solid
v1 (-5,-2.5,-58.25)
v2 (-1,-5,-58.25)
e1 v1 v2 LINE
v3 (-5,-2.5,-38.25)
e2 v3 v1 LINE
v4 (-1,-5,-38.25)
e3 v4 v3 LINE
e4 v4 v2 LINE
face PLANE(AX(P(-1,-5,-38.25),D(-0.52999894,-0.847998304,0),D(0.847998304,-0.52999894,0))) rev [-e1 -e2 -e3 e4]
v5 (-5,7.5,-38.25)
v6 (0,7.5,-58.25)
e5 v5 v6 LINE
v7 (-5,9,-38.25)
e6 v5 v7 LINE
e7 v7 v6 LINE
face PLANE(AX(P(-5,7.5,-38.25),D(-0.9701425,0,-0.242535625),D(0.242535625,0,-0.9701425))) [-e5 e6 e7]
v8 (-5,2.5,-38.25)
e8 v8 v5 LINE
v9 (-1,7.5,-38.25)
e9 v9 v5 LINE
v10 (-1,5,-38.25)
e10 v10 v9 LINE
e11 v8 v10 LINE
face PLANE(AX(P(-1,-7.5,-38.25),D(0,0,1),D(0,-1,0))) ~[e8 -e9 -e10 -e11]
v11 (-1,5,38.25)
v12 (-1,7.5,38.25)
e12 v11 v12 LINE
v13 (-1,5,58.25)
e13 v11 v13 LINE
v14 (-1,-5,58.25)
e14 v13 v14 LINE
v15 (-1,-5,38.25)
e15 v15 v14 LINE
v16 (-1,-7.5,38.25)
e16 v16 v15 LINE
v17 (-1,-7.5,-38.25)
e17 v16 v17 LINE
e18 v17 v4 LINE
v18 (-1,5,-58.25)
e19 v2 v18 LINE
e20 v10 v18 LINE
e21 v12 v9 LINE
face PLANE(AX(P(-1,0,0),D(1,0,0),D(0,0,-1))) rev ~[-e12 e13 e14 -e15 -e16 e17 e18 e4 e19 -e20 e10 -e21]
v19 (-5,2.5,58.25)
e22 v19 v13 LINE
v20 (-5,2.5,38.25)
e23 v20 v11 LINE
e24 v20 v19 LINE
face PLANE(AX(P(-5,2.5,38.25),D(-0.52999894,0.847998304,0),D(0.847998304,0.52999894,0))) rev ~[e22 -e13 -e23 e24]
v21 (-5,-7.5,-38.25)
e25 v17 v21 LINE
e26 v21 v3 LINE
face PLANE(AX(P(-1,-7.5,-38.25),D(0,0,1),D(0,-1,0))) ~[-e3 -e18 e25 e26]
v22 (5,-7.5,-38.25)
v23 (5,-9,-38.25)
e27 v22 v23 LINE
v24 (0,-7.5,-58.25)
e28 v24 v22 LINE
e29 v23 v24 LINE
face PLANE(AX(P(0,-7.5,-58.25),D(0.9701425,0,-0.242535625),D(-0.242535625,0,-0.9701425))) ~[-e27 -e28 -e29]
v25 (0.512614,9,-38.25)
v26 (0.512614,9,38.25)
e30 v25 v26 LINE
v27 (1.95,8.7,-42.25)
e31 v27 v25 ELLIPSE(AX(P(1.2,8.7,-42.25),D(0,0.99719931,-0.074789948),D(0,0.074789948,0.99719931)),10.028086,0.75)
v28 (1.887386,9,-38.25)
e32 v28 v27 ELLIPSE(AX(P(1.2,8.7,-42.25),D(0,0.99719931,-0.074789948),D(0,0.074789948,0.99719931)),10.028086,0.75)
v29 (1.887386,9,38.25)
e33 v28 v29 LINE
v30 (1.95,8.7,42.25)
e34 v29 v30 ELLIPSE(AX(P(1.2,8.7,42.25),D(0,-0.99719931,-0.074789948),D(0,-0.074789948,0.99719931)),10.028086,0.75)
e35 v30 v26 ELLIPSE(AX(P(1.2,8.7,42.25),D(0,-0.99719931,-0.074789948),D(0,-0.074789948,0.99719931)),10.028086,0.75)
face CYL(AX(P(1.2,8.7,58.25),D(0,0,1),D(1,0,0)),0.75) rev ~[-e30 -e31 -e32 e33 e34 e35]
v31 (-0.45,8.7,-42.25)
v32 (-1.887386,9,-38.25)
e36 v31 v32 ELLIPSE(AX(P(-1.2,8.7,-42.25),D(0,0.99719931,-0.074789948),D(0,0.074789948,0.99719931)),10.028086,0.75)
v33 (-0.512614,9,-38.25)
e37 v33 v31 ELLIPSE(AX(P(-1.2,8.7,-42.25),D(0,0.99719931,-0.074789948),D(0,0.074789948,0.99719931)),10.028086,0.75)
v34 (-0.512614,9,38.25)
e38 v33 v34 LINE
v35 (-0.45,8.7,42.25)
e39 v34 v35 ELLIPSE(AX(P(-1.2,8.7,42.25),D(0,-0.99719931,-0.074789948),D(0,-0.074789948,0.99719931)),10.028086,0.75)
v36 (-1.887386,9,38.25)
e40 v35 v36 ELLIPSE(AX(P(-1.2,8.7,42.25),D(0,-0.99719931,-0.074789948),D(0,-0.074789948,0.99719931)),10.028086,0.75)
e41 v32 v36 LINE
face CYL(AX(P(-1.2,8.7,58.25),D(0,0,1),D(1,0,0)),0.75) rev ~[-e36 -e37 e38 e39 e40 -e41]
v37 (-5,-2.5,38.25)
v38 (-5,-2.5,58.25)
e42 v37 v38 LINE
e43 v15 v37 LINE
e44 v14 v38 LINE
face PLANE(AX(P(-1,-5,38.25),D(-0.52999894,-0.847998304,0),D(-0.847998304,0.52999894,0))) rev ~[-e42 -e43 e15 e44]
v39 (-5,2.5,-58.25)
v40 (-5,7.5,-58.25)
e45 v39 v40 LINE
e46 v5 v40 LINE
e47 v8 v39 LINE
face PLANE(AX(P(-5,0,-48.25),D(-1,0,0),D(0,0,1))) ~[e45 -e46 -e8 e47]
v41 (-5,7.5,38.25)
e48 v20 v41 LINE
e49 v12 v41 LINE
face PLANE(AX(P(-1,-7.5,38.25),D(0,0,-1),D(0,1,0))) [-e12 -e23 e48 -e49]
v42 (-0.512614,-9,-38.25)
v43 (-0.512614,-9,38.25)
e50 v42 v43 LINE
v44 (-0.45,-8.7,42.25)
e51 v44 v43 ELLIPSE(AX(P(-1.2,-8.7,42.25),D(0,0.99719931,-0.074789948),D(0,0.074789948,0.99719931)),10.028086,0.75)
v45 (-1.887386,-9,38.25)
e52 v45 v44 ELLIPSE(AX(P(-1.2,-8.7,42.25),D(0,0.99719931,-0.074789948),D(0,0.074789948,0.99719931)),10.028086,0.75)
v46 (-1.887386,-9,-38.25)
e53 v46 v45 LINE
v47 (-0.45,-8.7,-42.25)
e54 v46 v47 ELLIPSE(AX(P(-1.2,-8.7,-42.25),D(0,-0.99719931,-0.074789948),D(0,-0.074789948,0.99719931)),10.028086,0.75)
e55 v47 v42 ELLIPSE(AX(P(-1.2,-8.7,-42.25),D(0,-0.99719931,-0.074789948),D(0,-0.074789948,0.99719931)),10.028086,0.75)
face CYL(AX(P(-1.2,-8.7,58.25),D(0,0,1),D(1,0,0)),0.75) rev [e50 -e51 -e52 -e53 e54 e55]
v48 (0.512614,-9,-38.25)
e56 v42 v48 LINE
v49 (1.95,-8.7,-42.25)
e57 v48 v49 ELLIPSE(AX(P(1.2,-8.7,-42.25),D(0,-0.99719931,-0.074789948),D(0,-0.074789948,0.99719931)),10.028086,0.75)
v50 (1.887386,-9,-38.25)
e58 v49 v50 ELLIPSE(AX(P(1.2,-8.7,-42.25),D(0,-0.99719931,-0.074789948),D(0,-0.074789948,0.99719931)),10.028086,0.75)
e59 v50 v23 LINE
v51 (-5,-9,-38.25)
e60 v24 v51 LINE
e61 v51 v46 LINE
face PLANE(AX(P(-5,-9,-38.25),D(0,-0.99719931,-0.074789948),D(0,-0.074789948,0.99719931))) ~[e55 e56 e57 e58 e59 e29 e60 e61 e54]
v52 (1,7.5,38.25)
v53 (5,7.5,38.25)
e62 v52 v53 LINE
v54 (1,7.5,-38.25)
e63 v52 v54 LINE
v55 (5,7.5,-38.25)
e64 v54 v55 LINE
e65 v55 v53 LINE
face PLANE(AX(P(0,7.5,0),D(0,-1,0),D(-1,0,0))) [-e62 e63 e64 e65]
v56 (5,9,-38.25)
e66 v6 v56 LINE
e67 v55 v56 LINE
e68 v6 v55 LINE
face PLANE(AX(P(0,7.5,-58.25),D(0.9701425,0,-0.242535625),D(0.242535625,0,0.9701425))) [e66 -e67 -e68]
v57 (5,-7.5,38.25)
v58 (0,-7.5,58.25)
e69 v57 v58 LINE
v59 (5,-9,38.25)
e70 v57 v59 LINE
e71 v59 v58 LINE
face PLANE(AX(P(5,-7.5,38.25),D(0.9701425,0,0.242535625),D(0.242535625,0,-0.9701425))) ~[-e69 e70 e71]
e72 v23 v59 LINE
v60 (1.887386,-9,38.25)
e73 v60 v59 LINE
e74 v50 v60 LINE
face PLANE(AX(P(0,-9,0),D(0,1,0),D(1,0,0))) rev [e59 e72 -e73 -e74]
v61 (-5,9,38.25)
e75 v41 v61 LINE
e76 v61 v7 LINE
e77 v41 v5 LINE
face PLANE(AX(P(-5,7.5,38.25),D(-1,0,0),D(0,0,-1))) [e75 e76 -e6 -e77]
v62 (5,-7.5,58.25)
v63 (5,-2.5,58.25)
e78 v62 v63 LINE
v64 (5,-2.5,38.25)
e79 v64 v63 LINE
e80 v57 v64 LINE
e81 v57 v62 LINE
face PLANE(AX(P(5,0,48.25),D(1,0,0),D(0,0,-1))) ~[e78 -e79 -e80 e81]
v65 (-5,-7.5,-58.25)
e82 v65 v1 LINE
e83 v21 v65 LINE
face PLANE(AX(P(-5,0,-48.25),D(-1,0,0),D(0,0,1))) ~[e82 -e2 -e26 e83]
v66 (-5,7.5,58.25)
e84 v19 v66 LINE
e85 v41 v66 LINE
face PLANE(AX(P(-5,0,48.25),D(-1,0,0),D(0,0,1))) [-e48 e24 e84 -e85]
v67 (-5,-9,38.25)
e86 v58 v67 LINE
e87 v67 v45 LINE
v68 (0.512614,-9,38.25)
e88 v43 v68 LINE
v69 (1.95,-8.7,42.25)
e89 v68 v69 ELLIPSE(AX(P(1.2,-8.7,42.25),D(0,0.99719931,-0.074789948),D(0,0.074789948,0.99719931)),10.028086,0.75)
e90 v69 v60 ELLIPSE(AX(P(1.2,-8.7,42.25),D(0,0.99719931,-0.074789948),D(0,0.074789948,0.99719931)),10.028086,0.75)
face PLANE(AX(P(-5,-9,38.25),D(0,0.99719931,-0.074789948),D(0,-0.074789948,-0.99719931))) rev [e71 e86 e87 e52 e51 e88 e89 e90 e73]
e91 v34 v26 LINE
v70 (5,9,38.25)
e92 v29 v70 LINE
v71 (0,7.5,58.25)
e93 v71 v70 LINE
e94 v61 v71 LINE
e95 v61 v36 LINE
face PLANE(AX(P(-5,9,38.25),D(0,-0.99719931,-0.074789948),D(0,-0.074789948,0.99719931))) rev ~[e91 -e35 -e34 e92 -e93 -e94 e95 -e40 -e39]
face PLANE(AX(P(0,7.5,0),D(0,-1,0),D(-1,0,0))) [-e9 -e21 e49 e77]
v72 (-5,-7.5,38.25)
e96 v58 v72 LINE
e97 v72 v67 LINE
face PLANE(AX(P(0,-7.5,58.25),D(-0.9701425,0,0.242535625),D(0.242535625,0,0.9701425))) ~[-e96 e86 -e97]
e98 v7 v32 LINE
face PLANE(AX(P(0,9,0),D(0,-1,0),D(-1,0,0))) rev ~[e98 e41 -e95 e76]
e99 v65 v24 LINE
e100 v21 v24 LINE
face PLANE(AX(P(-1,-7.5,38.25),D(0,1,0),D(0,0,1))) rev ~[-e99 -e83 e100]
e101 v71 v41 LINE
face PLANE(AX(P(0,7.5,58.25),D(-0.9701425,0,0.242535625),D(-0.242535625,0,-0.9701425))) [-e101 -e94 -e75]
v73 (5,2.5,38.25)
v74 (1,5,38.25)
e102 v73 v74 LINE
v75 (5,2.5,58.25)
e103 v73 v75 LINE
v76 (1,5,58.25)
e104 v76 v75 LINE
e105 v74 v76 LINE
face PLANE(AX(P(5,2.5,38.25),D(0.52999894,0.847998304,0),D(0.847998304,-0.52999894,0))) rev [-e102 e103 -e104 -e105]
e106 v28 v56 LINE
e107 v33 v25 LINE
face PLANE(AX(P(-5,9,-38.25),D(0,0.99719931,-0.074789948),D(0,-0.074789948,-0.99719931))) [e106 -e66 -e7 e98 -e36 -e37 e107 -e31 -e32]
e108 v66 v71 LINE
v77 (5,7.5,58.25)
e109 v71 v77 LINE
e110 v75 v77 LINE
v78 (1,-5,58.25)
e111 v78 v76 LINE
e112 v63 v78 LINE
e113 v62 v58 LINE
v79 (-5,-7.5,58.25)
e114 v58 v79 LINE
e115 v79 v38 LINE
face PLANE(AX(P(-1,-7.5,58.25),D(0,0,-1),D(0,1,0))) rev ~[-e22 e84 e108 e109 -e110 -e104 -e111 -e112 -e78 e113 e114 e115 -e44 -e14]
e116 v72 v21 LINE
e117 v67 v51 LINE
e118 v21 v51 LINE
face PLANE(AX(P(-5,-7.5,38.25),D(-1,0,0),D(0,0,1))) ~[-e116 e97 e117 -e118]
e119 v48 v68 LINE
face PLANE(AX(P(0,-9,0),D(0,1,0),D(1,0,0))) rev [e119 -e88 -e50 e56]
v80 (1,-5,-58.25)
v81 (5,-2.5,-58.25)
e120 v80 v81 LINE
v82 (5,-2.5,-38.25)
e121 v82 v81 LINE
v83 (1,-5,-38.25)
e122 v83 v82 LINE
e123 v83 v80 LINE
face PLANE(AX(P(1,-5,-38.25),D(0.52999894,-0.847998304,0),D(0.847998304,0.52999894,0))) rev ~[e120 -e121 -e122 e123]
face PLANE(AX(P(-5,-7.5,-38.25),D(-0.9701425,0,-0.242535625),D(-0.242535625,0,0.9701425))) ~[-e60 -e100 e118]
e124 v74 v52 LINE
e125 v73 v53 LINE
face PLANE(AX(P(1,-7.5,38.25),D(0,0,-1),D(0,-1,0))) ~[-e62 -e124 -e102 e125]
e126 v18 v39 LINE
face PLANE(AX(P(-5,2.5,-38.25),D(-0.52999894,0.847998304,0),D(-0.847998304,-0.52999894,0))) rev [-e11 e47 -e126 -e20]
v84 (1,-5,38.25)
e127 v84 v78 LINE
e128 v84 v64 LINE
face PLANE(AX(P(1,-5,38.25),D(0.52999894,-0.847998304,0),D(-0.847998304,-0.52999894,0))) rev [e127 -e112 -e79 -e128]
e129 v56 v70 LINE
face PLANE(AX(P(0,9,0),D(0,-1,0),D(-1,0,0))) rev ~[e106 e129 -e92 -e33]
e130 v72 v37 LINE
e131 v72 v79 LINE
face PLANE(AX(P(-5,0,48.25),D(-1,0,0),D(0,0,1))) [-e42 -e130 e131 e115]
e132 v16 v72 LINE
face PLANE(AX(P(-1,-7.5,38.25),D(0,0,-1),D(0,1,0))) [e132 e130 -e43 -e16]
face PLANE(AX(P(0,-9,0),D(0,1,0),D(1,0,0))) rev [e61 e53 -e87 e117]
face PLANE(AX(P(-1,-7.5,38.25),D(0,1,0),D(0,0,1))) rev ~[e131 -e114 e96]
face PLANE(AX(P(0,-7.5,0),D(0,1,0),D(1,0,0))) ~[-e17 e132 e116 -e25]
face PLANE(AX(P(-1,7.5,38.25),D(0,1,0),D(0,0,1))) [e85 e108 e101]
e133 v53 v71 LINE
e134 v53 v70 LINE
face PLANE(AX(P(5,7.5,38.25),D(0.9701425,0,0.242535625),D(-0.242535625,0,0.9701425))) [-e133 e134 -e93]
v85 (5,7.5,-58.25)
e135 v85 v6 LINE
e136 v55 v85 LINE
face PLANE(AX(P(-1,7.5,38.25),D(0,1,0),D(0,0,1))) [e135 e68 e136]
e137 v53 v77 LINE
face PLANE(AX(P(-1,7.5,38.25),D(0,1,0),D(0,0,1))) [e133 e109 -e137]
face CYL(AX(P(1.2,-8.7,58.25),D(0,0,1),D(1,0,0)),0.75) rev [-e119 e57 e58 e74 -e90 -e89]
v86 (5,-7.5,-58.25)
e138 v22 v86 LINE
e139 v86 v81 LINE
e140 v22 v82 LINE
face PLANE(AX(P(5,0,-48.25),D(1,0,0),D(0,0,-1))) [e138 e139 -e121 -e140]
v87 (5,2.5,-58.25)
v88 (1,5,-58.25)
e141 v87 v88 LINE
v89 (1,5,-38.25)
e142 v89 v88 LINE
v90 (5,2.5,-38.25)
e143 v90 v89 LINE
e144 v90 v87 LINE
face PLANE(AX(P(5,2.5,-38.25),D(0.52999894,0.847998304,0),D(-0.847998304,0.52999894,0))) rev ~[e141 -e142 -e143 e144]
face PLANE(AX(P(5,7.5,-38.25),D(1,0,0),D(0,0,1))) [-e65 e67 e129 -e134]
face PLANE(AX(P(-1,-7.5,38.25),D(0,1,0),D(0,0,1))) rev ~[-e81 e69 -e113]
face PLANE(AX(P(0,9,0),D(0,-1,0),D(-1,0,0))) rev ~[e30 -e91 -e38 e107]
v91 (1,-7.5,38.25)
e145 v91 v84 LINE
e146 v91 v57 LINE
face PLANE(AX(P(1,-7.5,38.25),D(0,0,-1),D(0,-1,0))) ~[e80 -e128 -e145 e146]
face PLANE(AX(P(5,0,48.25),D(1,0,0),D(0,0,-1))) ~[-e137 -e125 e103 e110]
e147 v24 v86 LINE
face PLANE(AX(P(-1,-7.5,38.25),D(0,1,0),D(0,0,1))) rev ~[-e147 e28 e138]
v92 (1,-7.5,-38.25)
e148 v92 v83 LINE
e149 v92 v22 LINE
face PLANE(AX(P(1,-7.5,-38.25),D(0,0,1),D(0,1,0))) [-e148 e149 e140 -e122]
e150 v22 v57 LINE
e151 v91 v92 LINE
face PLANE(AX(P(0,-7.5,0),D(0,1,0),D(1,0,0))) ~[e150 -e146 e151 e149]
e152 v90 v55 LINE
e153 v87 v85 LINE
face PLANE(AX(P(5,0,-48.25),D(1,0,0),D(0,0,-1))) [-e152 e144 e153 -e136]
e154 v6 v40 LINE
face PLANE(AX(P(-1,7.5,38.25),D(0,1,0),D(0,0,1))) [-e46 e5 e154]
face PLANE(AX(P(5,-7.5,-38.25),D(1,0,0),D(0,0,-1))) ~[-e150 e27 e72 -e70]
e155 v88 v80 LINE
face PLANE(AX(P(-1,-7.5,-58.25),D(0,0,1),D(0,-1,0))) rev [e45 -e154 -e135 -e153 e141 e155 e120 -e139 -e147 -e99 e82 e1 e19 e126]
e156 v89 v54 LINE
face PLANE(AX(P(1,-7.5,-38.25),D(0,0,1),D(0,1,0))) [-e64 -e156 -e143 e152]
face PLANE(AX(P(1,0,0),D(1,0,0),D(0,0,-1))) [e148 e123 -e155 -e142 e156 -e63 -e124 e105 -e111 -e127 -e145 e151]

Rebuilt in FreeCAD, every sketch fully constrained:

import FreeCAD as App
import Part
import Sketcher
Q = App.Units.Quantity


def add_polygon(sketch, points):
    """Adds a closed chain of lines whose ends are joined by coincident constraints."""
    first, n = sketch.GeometryCount, len(points)
    for a, b in zip(points, points[1:] + points[:1]):
        sketch.addGeometry(Part.LineSegment(App.Vector(*a, 0), App.Vector(*b, 0)), False)
    for i in range(n):
        sketch.addConstraint(Sketcher.Constraint("Coincident", first + i, 2, first + (i + 1) % n, 1))

doc = App.newDocument("Part")
body = doc.addObject("PartDesign::Body", "Body")

# Sketch on YZ plane
sketch1 = body.newObject("Sketcher::SketchObject", "Sketch")
sketch1.AttachmentSupport = (doc.getObject("YZ_Plane"), [""])
sketch1.MapMode = "FlatFace"
add_polygon(sketch1, [(8, 58), (-8, 58), (-8, -58), (8, -58)])  # lines 0-3
sketch1.addConstraint([
    Sketcher.Constraint("Horizontal", 0),
    Sketcher.Constraint("Vertical", 1),
    Sketcher.Constraint("Horizontal", 2),
    Sketcher.Constraint("Vertical", 3),
    Sketcher.Constraint("Symmetric", 0, 2, 2, 2, -1, 1),
    Sketcher.Constraint("DistanceX", 0, 2, 0, 1, Q("15 mm")),
    Sketcher.Constraint("DistanceY", 1, 2, 1, 1, Q("116.5 mm")),
])
pad1 = body.newObject("PartDesign::Pad", "Pad")
pad1.Profile = sketch1
pad1.Length = 2
pad1.Midplane = True

# Sketch on YZ plane
sketch2 = body.newObject("Sketcher::SketchObject", "Sketch001")
sketch2.AttachmentSupport = (doc.getObject("YZ_Plane"), [""])
sketch2.MapMode = "FlatFace"
sketch2.AttachmentOffset = App.Placement(App.Vector(0, 0, 1), App.Rotation())
add_polygon(sketch2, [(8, -38), (-8, -38), (-8, -58), (8, -58)])  # lines 0-3
sketch2.addConstraint([
    Sketcher.Constraint("Horizontal", 0),
    Sketcher.Constraint("Vertical", 1),
    Sketcher.Constraint("Horizontal", 2),
    Sketcher.Constraint("Vertical", 3),
    Sketcher.Constraint("DistanceX", 0, 2, 0, 1, Q("15 mm")),
    Sketcher.Constraint("DistanceY", 1, 2, 1, 1, Q("20 mm")),
    Sketcher.Constraint("DistanceX", 0, 2, -1, 1, Q("7.5 mm")),
    Sketcher.Constraint("DistanceY", 0, 2, -1, 1, Q("38.25 mm")),
])
pad2 = body.newObject("PartDesign::Pad", "Pad001")
pad2.Profile = sketch2
pad2.Length = 4

# Sketch on XY plane
sketch3 = body.newObject("Sketcher::SketchObject", "Sketch002")
sketch3.AttachmentSupport = (doc.getObject("XY_Plane"), [""])
sketch3.MapMode = "FlatFace"
sketch3.AttachmentOffset = App.Placement(App.Vector(0, 0, -38.25), App.Rotation())
add_polygon(sketch3, [(5, 2.5), (1, 5), (1, -5), (5, -2.5)])  # lines 0-3
sketch3.addConstraint([
    Sketcher.Constraint("Vertical", 1),
    Sketcher.Constraint("Vertical", 3),
    Sketcher.Constraint("Equal", 0, 2),
    Sketcher.Constraint("DistanceY", 1, 2, 1, 1, Q("10 mm")),
    Sketcher.Constraint("DistanceY", 3, 1, 3, 2, Q("5 mm")),
    Sketcher.Constraint("DistanceX", -1, 1, 0, 2, Q("1 mm")),
    Sketcher.Constraint("DistanceY", -1, 1, 0, 2, Q("5 mm")),
    Sketcher.Constraint("DistanceX", -1, 1, 2, 2, Q("5 mm")),
])
pocket1 = body.newObject("PartDesign::Pocket", "Pocket")
pocket1.Profile = sketch3
pocket1.Type = "ThroughAll"
doc.recompute()

mirrored = body.newObject("PartDesign::Mirrored", "Mirrored")
mirrored.Originals = [pad2, pocket1]
mirrored.MirrorPlane = (doc.getObject("YZ_Plane"), [""])
body.Tip = mirrored
doc.recompute()

mirrored2 = body.newObject("PartDesign::Mirrored", "Mirrored001")
mirrored2.Originals = [pad2, pocket1]
mirrored2.MirrorPlane = (doc.getObject("XY_Plane"), [""])
body.Tip = mirrored2

# Sketch on YZ plane
sketch4 = body.newObject("Sketcher::SketchObject", "Sketch003")
sketch4.AttachmentSupport = (doc.getObject("YZ_Plane"), [""])
sketch4.MapMode = "FlatFace"
sketch4.AttachmentOffset = App.Placement(App.Vector(0, 0, -1), App.Rotation())
add_polygon(sketch4, [(8, 38), (-8, 38), (-8, 58), (8, 58)])  # lines 0-3
sketch4.addConstraint([
    Sketcher.Constraint("Horizontal", 0),
    Sketcher.Constraint("Vertical", 1),
    Sketcher.Constraint("Horizontal", 2),
    Sketcher.Constraint("Vertical", 3),
    Sketcher.Constraint("DistanceX", 0, 2, 0, 1, Q("15 mm")),
    Sketcher.Constraint("DistanceY", 1, 1, 1, 2, Q("20 mm")),
    Sketcher.Constraint("DistanceX", 0, 2, -1, 1, Q("7.5 mm")),
    Sketcher.Constraint("DistanceY", -1, 1, 0, 2, Q("38.25 mm")),
])
pad3 = body.newObject("PartDesign::Pad", "Pad002")
pad3.Profile = sketch4
pad3.Length = 4
pad3.Reversed = True

# Sketch on XY plane
sketch5 = body.newObject("Sketcher::SketchObject", "Sketch004")
sketch5.AttachmentSupport = (doc.getObject("XY_Plane"), [""])
sketch5.MapMode = "FlatFace"
sketch5.AttachmentOffset = App.Placement(App.Vector(0, 0, 38.25), App.Rotation())
add_polygon(sketch5, [(-5, 2.5), (-1, 5), (-1, -5), (-5, -2.5)])  # lines 0-3
sketch5.addConstraint([
    Sketcher.Constraint("Vertical", 1),
    Sketcher.Constraint("Vertical", 3),
    Sketcher.Constraint("Equal", 0, 2),
    Sketcher.Constraint("DistanceY", 1, 2, 1, 1, Q("10 mm")),
    Sketcher.Constraint("DistanceY", 3, 1, 3, 2, Q("5 mm")),
    Sketcher.Constraint("DistanceX", 0, 2, -1, 1, Q("1 mm")),
    Sketcher.Constraint("DistanceY", -1, 1, 0, 2, Q("5 mm")),
    Sketcher.Constraint("DistanceX", 2, 2, -1, 1, Q("5 mm")),
])
pocket2 = body.newObject("PartDesign::Pocket", "Pocket001")
pocket2.Profile = sketch5
pocket2.Type = "ThroughAll"
pocket2.Reversed = True

# Sketch on XZ plane
sketch6 = body.newObject("Sketcher::SketchObject", "Sketch005")
sketch6.AttachmentSupport = (doc.getObject("XZ_Plane"), [""])
sketch6.MapMode = "FlatFace"
sketch6.AttachmentOffset = App.Placement(App.Vector(0, 0, -7.5), App.Rotation())
add_polygon(sketch6, [(-5, 38), (0, 58), (5, 38), (5, -38), (0, -58), (-5, -38)])  # lines 0-5
sketch6.addConstraint([
    Sketcher.Constraint("Vertical", 2),
    Sketcher.Constraint("Vertical", 5),
    Sketcher.Constraint("Symmetric", 0, 2, 3, 2, -1, 1),
    Sketcher.Constraint("Symmetric", 1, 2, 4, 2, -1, 1),
    Sketcher.Constraint("PointOnObject", 0, 2, -2),
    Sketcher.Constraint("Parallel", 0, 3),
    Sketcher.Constraint("Horizontal", 2, 2, 4, 2),
    Sketcher.Constraint("DistanceY", 2, 2, 2, 1, Q("76.5 mm")),
    Sketcher.Constraint("DistanceX", -1, 1, 1, 2, Q("5 mm")),
    Sketcher.Constraint("DistanceY", 1, 2, 0, 2, Q("20 mm")),
])
pad4 = body.newObject("PartDesign::Pad", "Pad003")
pad4.Profile = sketch6
pad4.Length = 1.5
pad4.Reversed = True

# Sketch on YZ plane
sketch7 = body.newObject("Sketcher::SketchObject", "Sketch006")
sketch7.AttachmentSupport = (doc.getObject("YZ_Plane"), [""])
sketch7.MapMode = "FlatFace"
sketch7.AttachmentOffset = App.Placement(App.Vector(0, 0, -5), App.Rotation())
add_polygon(sketch7, [(7.5, -58.2), (9, -38.2), (9, -58.2)])  # lines 0-2
add_polygon(sketch7, [(9, 58.2), (9, 38.2), (7.5, 58.2)])  # lines 3-5
sketch7.addConstraint([
    Sketcher.Constraint("Vertical", 1),
    Sketcher.Constraint("Horizontal", 2),
    Sketcher.Constraint("Vertical", 3),
    Sketcher.Constraint("Horizontal", 5),
    Sketcher.Constraint("Symmetric", 0, 2, 3, 2, -1),
    Sketcher.Constraint("Symmetric", 2, 2, 4, 2, -1),
    Sketcher.Constraint("DistanceY", 1, 2, 1, 1, Q("20 mm")),
    Sketcher.Constraint("DistanceX", 2, 2, 2, 1, Q("1.5 mm")),
    Sketcher.Constraint("DistanceX", -1, 1, 0, 2, Q("9 mm")),
    Sketcher.Constraint("DistanceY", 0, 2, 3, 2, Q("76.5 mm")),
])
pocket3 = body.newObject("PartDesign::Pocket", "Pocket002")
pocket3.Profile = sketch7
pocket3.Type = "ThroughAll"
pocket3.Reversed = True

# Sketch on XY plane
sketch8 = body.newObject("Sketcher::SketchObject", "Sketch007")
sketch8.AttachmentSupport = (doc.getObject("XY_Plane"), [""])
sketch8.MapMode = "FlatFace"
sketch8.AttachmentOffset = App.Placement(App.Vector(0, 0, 58.25), App.Rotation())
sketch8.addGeometry([
    Part.Circle(App.Vector(1.2, 8.7, 0), App.Vector(0, 0, 1), 0.8),
    Part.Circle(App.Vector(-1.2, 8.7, 0), App.Vector(0, 0, 1), 0.8),
], False)
sketch8.addConstraint([
    Sketcher.Constraint("Equal", 0, 1),
    Sketcher.Constraint("Symmetric", 0, 3, 1, 3, -2),
    Sketcher.Constraint("Diameter", 0, Q("1.5 mm")),
    Sketcher.Constraint("DistanceX", -1, 1, 0, 3, Q("1.2 mm")),
    Sketcher.Constraint("DistanceY", -1, 1, 0, 3, Q("8.7 mm")),
])
pocket4 = body.newObject("PartDesign::Pocket", "Pocket003")
pocket4.Profile = sketch8
pocket4.Type = "ThroughAll"
doc.recompute()

mirrored3 = body.newObject("PartDesign::Mirrored", "Mirrored002")
mirrored3.Originals = [pad4, pocket3, pocket4]
mirrored3.MirrorPlane = (doc.getObject("XZ_Plane"), [""])
body.Tip = mirrored3

doc.recompute()
